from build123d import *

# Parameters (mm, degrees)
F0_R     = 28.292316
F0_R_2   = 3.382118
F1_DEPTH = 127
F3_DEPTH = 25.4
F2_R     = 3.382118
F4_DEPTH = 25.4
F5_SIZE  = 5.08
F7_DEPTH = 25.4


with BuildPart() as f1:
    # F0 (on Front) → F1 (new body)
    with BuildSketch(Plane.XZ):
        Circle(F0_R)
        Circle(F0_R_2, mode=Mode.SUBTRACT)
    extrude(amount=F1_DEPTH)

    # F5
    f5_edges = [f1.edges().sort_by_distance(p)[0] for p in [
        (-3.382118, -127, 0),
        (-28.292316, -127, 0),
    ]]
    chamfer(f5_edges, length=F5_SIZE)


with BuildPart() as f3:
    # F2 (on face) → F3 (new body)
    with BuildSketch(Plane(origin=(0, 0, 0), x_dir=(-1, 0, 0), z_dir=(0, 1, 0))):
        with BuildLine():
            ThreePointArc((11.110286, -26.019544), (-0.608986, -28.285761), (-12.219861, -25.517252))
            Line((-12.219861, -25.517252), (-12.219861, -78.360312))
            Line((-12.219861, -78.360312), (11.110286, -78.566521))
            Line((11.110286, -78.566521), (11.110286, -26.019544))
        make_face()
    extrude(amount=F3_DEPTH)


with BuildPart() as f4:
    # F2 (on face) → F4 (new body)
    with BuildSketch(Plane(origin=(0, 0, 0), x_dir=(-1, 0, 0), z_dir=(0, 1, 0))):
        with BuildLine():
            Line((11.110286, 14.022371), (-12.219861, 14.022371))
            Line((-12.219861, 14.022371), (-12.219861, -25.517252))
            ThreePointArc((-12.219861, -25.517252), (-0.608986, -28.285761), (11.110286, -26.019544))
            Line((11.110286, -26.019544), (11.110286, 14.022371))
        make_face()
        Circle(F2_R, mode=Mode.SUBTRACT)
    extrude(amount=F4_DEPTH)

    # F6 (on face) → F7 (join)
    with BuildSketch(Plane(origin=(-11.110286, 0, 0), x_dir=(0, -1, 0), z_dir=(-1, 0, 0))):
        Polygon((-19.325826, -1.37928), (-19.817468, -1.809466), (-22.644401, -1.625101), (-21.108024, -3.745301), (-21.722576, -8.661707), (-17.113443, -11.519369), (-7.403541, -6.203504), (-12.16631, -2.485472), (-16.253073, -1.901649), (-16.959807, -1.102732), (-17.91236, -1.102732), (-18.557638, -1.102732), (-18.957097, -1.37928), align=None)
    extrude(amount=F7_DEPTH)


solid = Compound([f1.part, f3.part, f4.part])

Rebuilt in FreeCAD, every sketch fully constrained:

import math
import FreeCAD as App
import Part
import Sketcher
Q = App.Units.Quantity


def edges_at(feature, points):
    """Names of the edges that pass closest to the given points."""
    edges = feature.Shape.Edges
    near = lambda p: min(range(len(edges)), key=lambda i: edges[i].distToShape(Part.Vertex(*p))[0])
    return sorted({f"Edge{near(p) + 1}" for p in points})


def add_polygon(sketch, points):
    """Adds a closed chain of lines whose ends are joined by coincident constraints."""
    first, n = sketch.GeometryCount, len(points)
    for a, b in zip(points, points[1:] + points[:1]):
        sketch.addGeometry(Part.LineSegment(App.Vector(*a, 0), App.Vector(*b, 0)), False)
    for i in range(n):
        sketch.addConstraint(Sketcher.Constraint("Coincident", first + i, 2, first + (i + 1) % n, 1))

doc = App.newDocument("Part")
body = doc.addObject("PartDesign::Body", "Body")

sketch1 = body.newObject("Sketcher::SketchObject", "Sketch")
sketch1.AttachmentSupport = (doc.getObject("XZ_Plane"), [""])
sketch1.MapMode = "FlatFace"
sketch1.addGeometry(Part.Circle(App.Vector(0, 0, 0), App.Vector(0, 0, 1), 28.3), False)
sketch1.addGeometry(Part.Circle(App.Vector(0, 0, 0), App.Vector(0, 0, 1), 3.4), False)
sketch1.addConstraint(Sketcher.Constraint("Coincident", 0, 3, -1, 1))
sketch1.addConstraint(Sketcher.Constraint("Coincident", 1, 3, -1, 1))
sketch1.addConstraint(Sketcher.Constraint("Diameter", 0, 56.584632))
sketch1.addConstraint(Sketcher.Constraint("Diameter", 1, 6.764236))
pad1 = body.newObject("PartDesign::Pad", "Pad")
pad1.Profile = sketch1
pad1.Length = Q("5 in")
doc.recompute()

chamfer = body.newObject("PartDesign::Chamfer", "Chamfer")
chamfer.Base = (pad1, edges_at(pad1, [(-3.382, -127, 0), (-28.292, -127, 0)]))
chamfer.Size = Q("0.2 in")
body2 = doc.addObject("PartDesign::Body", "Body001")

sketch2 = body2.newObject("Sketcher::SketchObject", "Sketch001")
sketch2.AttachmentSupport = (doc.getObject("XZ_Plane001"), [""])
sketch2.MapMode = "FlatFace"
sketch2.addGeometry(Part.ArcOfCircle(Part.Circle(App.Vector(0, 0, 0), App.Vector(0, 0, 1), 28), math.radians(-113), math.radians(-64)), False)
sketch2.addGeometry(Part.LineSegment(App.Vector(12, -26, 0), App.Vector(12, -78, 0)), False)
sketch2.addGeometry(Part.LineSegment(App.Vector(12, -78, 0), App.Vector(-11, -79, 0)), False)
sketch2.addGeometry(Part.LineSegment(App.Vector(-11, -79, 0), App.Vector(-11, -26, 0)), False)
sketch2.addConstraint(Sketcher.Constraint("Coincident", 0, 2, 1, 1))
sketch2.addConstraint(Sketcher.Constraint("Coincident", 1, 2, 2, 1))
sketch2.addConstraint(Sketcher.Constraint("Coincident", 2, 2, 3, 1))
sketch2.addConstraint(Sketcher.Constraint("Coincident", 3, 2, 0, 1))
sketch2.addConstraint(Sketcher.Constraint("Vertical", 1))
sketch2.addConstraint(Sketcher.Constraint("Vertical", 3))
sketch2.addConstraint(Sketcher.Constraint("Coincident", 0, 3, -1, 1))
sketch2.addConstraint(Sketcher.Constraint("Radius", 0, 28.292316))
sketch2.addConstraint(Sketcher.Constraint("DistanceY", 1, 2, 1, 1, 52.84306))
sketch2.addConstraint(Sketcher.Constraint("Distance", 2, 23.331058))
sketch2.addConstraint(Sketcher.Constraint("DistanceY", 3, 1, 3, 2, 52.546977))
sketch2.addConstraint(Sketcher.Constraint("DistanceX", -1, 1, 0, 2, 12.219861))
pad2 = body2.newObject("PartDesign::Pad", "Pad001")
pad2.Profile = sketch2
pad2.Length = Q("1 in")
pad2.Reversed = True
body3 = doc.addObject("PartDesign::Body", "Body002")

sketch3 = body3.newObject("Sketcher::SketchObject", "Sketch002")
sketch3.AttachmentSupport = (doc.getObject("XZ_Plane002"), [""])
sketch3.MapMode = "FlatFace"
sketch3.addGeometry(Part.LineSegment(App.Vector(-11.1, 14, 0), App.Vector(12.2, 14, 0)), False)
sketch3.addGeometry(Part.LineSegment(App.Vector(12.2, 14, 0), App.Vector(12.2, -25.5, 0)), False)
sketch3.addGeometry(Part.ArcOfCircle(Part.Circle(App.Vector(0, 0, 0), App.Vector(0, 0, 1), 28.3), math.radians(-113), math.radians(-64)), False)
sketch3.addGeometry(Part.LineSegment(App.Vector(-11.1, -26, 0), App.Vector(-11.1, 14, 0)), False)
sketch3.addGeometry(Part.Circle(App.Vector(0, 0, 0), App.Vector(0, 0, 1), 3.4), False)
sketch3.addConstraint(Sketcher.Constraint("Coincident", 0, 2, 1, 1))
sketch3.addConstraint(Sketcher.Constraint("Coincident", 1, 2, 2, 2))
sketch3.addConstraint(Sketcher.Constraint("Coincident", 2, 1, 3, 1))
sketch3.addConstraint(Sketcher.Constraint("Coincident", 3, 2, 0, 1))
sketch3.addConstraint(Sketcher.Constraint("Horizontal", 0))
sketch3.addConstraint(Sketcher.Constraint("Vertical", 1))
sketch3.addConstraint(Sketcher.Constraint("Vertical", 3))
sketch3.addConstraint(Sketcher.Constraint("Coincident", 2, 3, -1, 1))
sketch3.addConstraint(Sketcher.Constraint("Coincident", 4, 3, -1, 1))
sketch3.addConstraint(Sketcher.Constraint("Diameter", 4, 6.764236))
sketch3.addConstraint(Sketcher.Constraint("Radius", 2, 28.292316))
sketch3.addConstraint(Sketcher.Constraint("DistanceX", 0, 1, 0, 2, 23.330147))
sketch3.addConstraint(Sketcher.Constraint("DistanceY", 1, 2, 1, 1, 39.539623))
sketch3.addConstraint(Sketcher.Constraint("DistanceY", 3, 1, 3, 2, 40.041915))
pad3 = body3.newObject("PartDesign::Pad", "Pad002")
pad3.Profile = sketch3
pad3.Length = Q("1 in")
pad3.Reversed = True

sketch4 = body3.newObject("Sketcher::SketchObject", "Sketch003")
sketch4.AttachmentSupport = (doc.getObject("YZ_Plane002"), [""])
sketch4.MapMode = "FlatFace"
sketch4.AttachmentOffset = App.Placement(App.Vector(0, 0, -11.110286), App.Rotation())
add_polygon(sketch4, [(19.33, -1.38), (19.82, -1.81), (22.64, -1.63), (21.11, -3.75), (21.72, -8.66), (17.11, -11.52), (7.4, -6.2), (12.17, -2.49), (16.25, -1.9), (16.96, -1.1), (18.56, -1.1), (18.96, -1.38)])
sketch4.addConstraint(Sketcher.Constraint("Horizontal", 9))
sketch4.addConstraint(Sketcher.Constraint("Horizontal", 11))
sketch4.addConstraint(Sketcher.Constraint("DistanceX", 9, 1, 9, 2, 1.597831))
sketch4.addConstraint(Sketcher.Constraint("DistanceX", 11, 1, 11, 2, 0.368729))
sketch4.addConstraint(Sketcher.Constraint("DistanceX", -1, 1, 1, 2, 22.644401))
sketch4.addConstraint(Sketcher.Constraint("DistanceY", 1, 2, -1, 1, 1.625101))
sketch4.addConstraint(Sketcher.Constraint("DistanceY", 2, 2, -1, 1, 3.745301))
sketch4.addConstraint(Sketcher.Constraint("DistanceX", 11, 2, 2, 2, 1.782198))
sketch4.addConstraint(Sketcher.Constraint("Distance", 1, 2.832939))
sketch4.addConstraint(Sketcher.Constraint("Distance", 2, 2.61834))
sketch4.addConstraint(Sketcher.Constraint("Distance", 4, 5.42313))
sketch4.addConstraint(Sketcher.Constraint("Distance", 8, 1.06665))
sketch4.addConstraint(Sketcher.Constraint("DistanceX", -1, 1, 0, 2, 19.817468))
sketch4.addConstraint(Sketcher.Constraint("DistanceY", 4, 2, -1, 1, 11.519369))
sketch4.addConstraint(Sketcher.Constraint("DistanceX", -1, 1, 5, 2, 7.403541))
sketch4.addConstraint(Sketcher.Constraint("DistanceX", -1, 1, 6, 2, 12.16631))
sketch4.addConstraint(Sketcher.Constraint("DistanceY", 7, 2, -1, 1, 1.901649))
sketch4.addConstraint(Sketcher.Constraint("DistanceX", -1, 1, 9, 2, 18.557638))
sketch4.addConstraint(Sketcher.Constraint("DistanceY", 10, 2, -1, 1, 1.37928))
sketch4.addConstraint(Sketcher.Constraint("DistanceX", 2, 2, 3, 2, 0.614552))
sketch4.addConstraint(Sketcher.Constraint("DistanceY", 3, 2, 0, 2, 6.852241))
sketch4.addConstraint(Sketcher.Constraint("DistanceY", 5, 2, 6, 2, 3.718032))
sketch4.addConstraint(Sketcher.Constraint("DistanceY", 2, 2, 6, 2, 1.259829))
sketch4.addConstraint(Sketcher.Constraint("DistanceX", 7, 2, 2, 2, 4.854951))
pad4 = body3.newObject("PartDesign::Pad", "Pad003")
pad4.Profile = sketch4
pad4.Length = Q("1 in")
pad4.Reversed = True

doc.recompute()
